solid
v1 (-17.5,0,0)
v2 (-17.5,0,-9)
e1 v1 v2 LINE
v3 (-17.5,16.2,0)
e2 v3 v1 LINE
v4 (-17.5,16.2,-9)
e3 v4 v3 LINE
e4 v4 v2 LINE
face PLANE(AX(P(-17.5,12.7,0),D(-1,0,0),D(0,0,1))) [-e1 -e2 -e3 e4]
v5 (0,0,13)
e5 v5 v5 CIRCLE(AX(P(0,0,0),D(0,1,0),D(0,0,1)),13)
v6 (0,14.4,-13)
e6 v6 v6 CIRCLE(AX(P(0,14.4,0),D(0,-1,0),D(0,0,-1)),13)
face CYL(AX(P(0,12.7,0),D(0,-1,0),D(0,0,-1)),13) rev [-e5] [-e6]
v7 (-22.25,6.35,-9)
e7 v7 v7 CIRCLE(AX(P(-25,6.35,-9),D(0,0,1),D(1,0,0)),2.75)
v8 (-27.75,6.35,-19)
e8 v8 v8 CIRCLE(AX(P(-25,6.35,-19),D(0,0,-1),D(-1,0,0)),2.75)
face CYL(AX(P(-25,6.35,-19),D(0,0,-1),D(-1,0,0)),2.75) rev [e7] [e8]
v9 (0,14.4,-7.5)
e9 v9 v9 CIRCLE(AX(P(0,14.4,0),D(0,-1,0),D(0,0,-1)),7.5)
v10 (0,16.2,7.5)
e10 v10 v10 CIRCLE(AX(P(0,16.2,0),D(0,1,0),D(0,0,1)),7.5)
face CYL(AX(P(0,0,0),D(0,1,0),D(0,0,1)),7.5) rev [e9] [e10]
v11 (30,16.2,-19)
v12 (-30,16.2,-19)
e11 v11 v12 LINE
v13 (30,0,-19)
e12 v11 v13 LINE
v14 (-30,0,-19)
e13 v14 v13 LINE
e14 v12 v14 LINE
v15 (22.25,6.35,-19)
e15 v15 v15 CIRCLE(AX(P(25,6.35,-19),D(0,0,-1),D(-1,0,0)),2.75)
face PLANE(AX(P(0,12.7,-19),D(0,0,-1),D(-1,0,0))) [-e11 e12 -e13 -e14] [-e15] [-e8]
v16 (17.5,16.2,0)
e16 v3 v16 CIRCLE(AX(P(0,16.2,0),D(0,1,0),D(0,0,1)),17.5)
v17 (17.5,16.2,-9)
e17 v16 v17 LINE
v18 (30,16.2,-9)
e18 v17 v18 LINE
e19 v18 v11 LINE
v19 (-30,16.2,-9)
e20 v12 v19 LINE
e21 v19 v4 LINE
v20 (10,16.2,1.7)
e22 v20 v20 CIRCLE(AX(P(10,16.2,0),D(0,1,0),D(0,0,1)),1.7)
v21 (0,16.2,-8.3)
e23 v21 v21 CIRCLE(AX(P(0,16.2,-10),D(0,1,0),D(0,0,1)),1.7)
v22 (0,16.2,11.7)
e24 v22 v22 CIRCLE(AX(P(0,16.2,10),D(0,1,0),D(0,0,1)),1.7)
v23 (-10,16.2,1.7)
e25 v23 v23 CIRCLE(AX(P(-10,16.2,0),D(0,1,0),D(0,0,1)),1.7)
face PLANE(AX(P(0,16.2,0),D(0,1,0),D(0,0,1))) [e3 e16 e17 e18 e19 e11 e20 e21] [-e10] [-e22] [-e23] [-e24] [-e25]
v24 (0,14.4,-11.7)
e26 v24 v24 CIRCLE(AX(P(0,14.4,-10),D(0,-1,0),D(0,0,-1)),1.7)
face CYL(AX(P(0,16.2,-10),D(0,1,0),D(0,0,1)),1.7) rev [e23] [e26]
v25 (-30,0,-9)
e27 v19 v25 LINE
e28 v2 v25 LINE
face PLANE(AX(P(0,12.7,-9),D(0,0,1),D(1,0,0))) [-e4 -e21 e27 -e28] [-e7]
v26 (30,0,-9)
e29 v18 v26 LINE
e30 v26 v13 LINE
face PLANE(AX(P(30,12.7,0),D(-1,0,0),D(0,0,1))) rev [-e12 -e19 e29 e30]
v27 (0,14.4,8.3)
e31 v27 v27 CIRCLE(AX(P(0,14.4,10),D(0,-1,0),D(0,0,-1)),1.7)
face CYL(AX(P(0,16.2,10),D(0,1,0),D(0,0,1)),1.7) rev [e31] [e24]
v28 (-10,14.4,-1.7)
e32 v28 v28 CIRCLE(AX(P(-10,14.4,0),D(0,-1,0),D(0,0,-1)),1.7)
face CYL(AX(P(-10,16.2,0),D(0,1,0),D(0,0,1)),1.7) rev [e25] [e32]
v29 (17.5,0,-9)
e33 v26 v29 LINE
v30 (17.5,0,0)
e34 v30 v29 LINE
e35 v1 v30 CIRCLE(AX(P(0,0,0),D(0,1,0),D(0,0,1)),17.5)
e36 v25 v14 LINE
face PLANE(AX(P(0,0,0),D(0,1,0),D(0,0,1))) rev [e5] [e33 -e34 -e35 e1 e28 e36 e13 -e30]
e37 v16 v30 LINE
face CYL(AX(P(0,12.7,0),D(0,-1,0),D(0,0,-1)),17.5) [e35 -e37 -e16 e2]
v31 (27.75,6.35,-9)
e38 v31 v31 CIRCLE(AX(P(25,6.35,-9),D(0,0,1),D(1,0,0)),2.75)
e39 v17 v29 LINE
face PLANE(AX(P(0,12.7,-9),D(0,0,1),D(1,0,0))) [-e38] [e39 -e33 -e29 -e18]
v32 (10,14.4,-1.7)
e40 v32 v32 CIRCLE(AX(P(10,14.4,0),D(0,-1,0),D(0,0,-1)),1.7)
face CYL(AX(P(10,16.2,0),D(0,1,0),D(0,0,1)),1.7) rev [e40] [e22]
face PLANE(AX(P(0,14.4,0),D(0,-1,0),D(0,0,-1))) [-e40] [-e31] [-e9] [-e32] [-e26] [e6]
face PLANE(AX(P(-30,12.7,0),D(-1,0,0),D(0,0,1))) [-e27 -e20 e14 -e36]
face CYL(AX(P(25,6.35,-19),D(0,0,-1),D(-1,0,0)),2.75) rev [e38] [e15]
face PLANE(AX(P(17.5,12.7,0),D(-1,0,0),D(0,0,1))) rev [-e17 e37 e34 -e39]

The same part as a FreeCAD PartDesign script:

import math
import FreeCAD as App
import Part
import Sketcher

V = App.Vector
Q = App.Units.Quantity

doc = App.newDocument("Part")
body = doc.addObject("PartDesign::Body", "Body")

# Sketch on XZ plane
sketch1 = doc.addObject("Sketcher::SketchObject", "Sketch")
body.addObject(sketch1)
sketch1.AttachmentSupport = (doc.XZ_Plane, [""])
sketch1.MapMode = "FlatFace"
sketch1.addGeometry(Part.LineSegment(V(-30, -9, 0), V(-17.5, -9, 0)), False)
sketch1.addGeometry(Part.LineSegment(V(-17.5, -9, 0), V(-17.5, 0, 0)), False)
sketch1.addGeometry(Part.ArcOfCircle(Part.Circle(V(0, 0, 0), V(0, 0, 1), 17.5), math.radians(0), math.radians(180)), False)
sketch1.addGeometry(Part.LineSegment(V(17.5, 0, 0), V(17.5, -9, 0)), False)
sketch1.addGeometry(Part.LineSegment(V(17.5, -9, 0), V(30, -9, 0)), False)
sketch1.addGeometry(Part.LineSegment(V(30, -9, 0), V(30, -19, 0)), False)
sketch1.addGeometry(Part.LineSegment(V(30, -19, 0), V(-30, -19, 0)), False)
sketch1.addGeometry(Part.LineSegment(V(-30, -19, 0), V(-30, -9, 0)), False)
sketch1.addGeometry(Part.Circle(V(0, 0, 0), V(0, 0, 1), 13), False)
sketch1.addConstraint(Sketcher.Constraint("Coincident", 0, 2, 1, 1))
sketch1.addConstraint(Sketcher.Constraint("Tangent", 1, 2, 2, 2))
sketch1.addConstraint(Sketcher.Constraint("Tangent", 2, 1, 3, 1))
sketch1.addConstraint(Sketcher.Constraint("Coincident", 3, 2, 4, 1))
sketch1.addConstraint(Sketcher.Constraint("Coincident", 4, 2, 5, 1))
sketch1.addConstraint(Sketcher.Constraint("Coincident", 5, 2, 6, 1))
sketch1.addConstraint(Sketcher.Constraint("Coincident", 6, 2, 7, 1))
sketch1.addConstraint(Sketcher.Constraint("Coincident", 7, 2, 0, 1))
sketch1.addConstraint(Sketcher.Constraint("Horizontal", 0))
sketch1.addConstraint(Sketcher.Constraint("Vertical", 1))
sketch1.addConstraint(Sketcher.Constraint("Vertical", 3))
sketch1.addConstraint(Sketcher.Constraint("Horizontal", 4))
sketch1.addConstraint(Sketcher.Constraint("Vertical", 5))
sketch1.addConstraint(Sketcher.Constraint("Horizontal", 6))
sketch1.addConstraint(Sketcher.Constraint("Vertical", 7))
sketch1.addConstraint(Sketcher.Constraint("Coincident", 2, 3, -1, 1))
sketch1.addConstraint(Sketcher.Constraint("Coincident", 8, 3, -1, 1))
sketch1.addConstraint(Sketcher.Constraint("Symmetric", 4, 2, 7, 2, -2))
sketch1.addConstraint(Sketcher.Constraint("Diameter", 8, Q("26 mm")))
sketch1.addConstraint(Sketcher.Constraint("Radius", 2, Q("17.5 mm")))
sketch1.addConstraint(Sketcher.Constraint("DistanceX", 6, 2, 6, 1, Q("60 mm")))
sketch1.addConstraint(Sketcher.Constraint("DistanceY", 1, 1, 1, 2, Q("9 mm")))
sketch1.addConstraint(Sketcher.Constraint("DistanceY", 5, 2, 5, 1, Q("10 mm")))
pad1 = doc.addObject("PartDesign::Pad", "Pad")
body.addObject(pad1)
pad1.Profile = sketch1
pad1.Length = 12.7
pad1.Reversed = True

# Sketch on XY plane
sketch2 = doc.addObject("Sketcher::SketchObject", "Sketch001")
body.addObject(sketch2)
sketch2.AttachmentSupport = (doc.XY_Plane, [""])
sketch2.MapMode = "FlatFace"
sketch2.AttachmentOffset = App.Placement(V(0, 0, -19), App.Rotation())
sketch2.addGeometry(Part.Circle(V(-25, 6.35, 0), V(0, 0, 1), 2.75), False)
sketch2.addGeometry(Part.Circle(V(25, 6.35, 0), V(0, 0, 1), 2.75), False)
sketch2.addConstraint(Sketcher.Constraint("Equal", 0, 1))
sketch2.addConstraint(Sketcher.Constraint("Symmetric", 0, 3, 1, 3, -2))
sketch2.addConstraint(Sketcher.Constraint("Diameter", 0, Q("5.5 mm")))
sketch2.addConstraint(Sketcher.Constraint("DistanceX", 0, 3, -1, 1, Q("25 mm")))
sketch2.addConstraint(Sketcher.Constraint("DistanceY", -1, 1, 0, 3, Q("6.35 mm")))
doc.recompute()
hole = doc.addObject("PartDesign::Hole", "Hole")
body.addObject(hole)
hole.Profile = sketch2
hole.ThreadType = "None"
hole.Diameter = 5.5
hole.DepthType = "Dimension"
hole.Depth = 10.1
hole.DrillPoint = "Angled"
hole.DrillPointAngle = 118
hole.Reversed = True

# Sketch on XZ plane
sketch3 = doc.addObject("Sketcher::SketchObject", "Sketch002")
body.addObject(sketch3)
sketch3.AttachmentSupport = (doc.XZ_Plane, [""])
sketch3.MapMode = "FlatFace"
sketch3.AttachmentOffset = App.Placement(V(0, 0, -12.7), App.Rotation())
sketch3.addGeometry(Part.LineSegment(V(-30, -9, 0), V(-17.5, -9, 0)), False)
sketch3.addGeometry(Part.LineSegment(V(-17.5, -9, 0), V(-17.5, 0, 0)), False)
sketch3.addGeometry(Part.ArcOfCircle(Part.Circle(V(0, 0, 0), V(0, 0, 1), 17.5), math.radians(0), math.radians(180)), False)
sketch3.addGeometry(Part.LineSegment(V(17.5, 0, 0), V(17.5, -9, 0)), False)
sketch3.addGeometry(Part.LineSegment(V(17.5, -9, 0), V(30, -9, 0)), False)
sketch3.addGeometry(Part.LineSegment(V(30, -9, 0), V(30, -19, 0)), False)
sketch3.addGeometry(Part.LineSegment(V(30, -19, 0), V(-30, -19, 0)), False)
sketch3.addGeometry(Part.LineSegment(V(-30, -19, 0), V(-30, -9, 0)), False)
sketch3.addConstraint(Sketcher.Constraint("Coincident", 0, 2, 1, 1))
sketch3.addConstraint(Sketcher.Constraint("Tangent", 1, 2, 2, 2))
sketch3.addConstraint(Sketcher.Constraint("Tangent", 2, 1, 3, 1))
sketch3.addConstraint(Sketcher.Constraint("Coincident", 3, 2, 4, 1))
sketch3.addConstraint(Sketcher.Constraint("Coincident", 4, 2, 5, 1))
sketch3.addConstraint(Sketcher.Constraint("Coincident", 5, 2, 6, 1))
sketch3.addConstraint(Sketcher.Constraint("Coincident", 6, 2, 7, 1))
sketch3.addConstraint(Sketcher.Constraint("Coincident", 7, 2, 0, 1))
sketch3.addConstraint(Sketcher.Constraint("Horizontal", 0))
sketch3.addConstraint(Sketcher.Constraint("Vertical", 1))
sketch3.addConstraint(Sketcher.Constraint("Vertical", 3))
sketch3.addConstraint(Sketcher.Constraint("Horizontal", 4))
sketch3.addConstraint(Sketcher.Constraint("Vertical", 5))
sketch3.addConstraint(Sketcher.Constraint("Horizontal", 6))
sketch3.addConstraint(Sketcher.Constraint("Vertical", 7))
sketch3.addConstraint(Sketcher.Constraint("Coincident", 2, 3, -1, 1))
sketch3.addConstraint(Sketcher.Constraint("Symmetric", 4, 2, 7, 2, -2))
sketch3.addConstraint(Sketcher.Constraint("Radius", 2, Q("17.5 mm")))
sketch3.addConstraint(Sketcher.Constraint("DistanceX", 6, 2, 6, 1, Q("60 mm")))
sketch3.addConstraint(Sketcher.Constraint("DistanceY", 1, 1, 1, 2, Q("9 mm")))
sketch3.addConstraint(Sketcher.Constraint("DistanceY", 5, 2, 5, 1, Q("10 mm")))
pad2 = doc.addObject("PartDesign::Pad", "Pad001")
body.addObject(pad2)
pad2.Profile = sketch3
pad2.Length = 3.5
pad2.Reversed = True

# Sketch on XZ plane
sketch4 = doc.addObject("Sketcher::SketchObject", "Sketch003")
body.addObject(sketch4)
sketch4.AttachmentSupport = (doc.XZ_Plane, [""])
sketch4.MapMode = "FlatFace"
sketch4.AttachmentOffset = App.Placement(V(0, 0, -12.7), App.Rotation())
sketch4.addGeometry(Part.Circle(V(0, 0, 0), V(0, 0, 1), 13), False)
sketch4.addConstraint(Sketcher.Constraint("Coincident", 0, 3, -1, 1))
sketch4.addConstraint(Sketcher.Constraint("Diameter", 0, Q("26 mm")))
pocket1 = doc.addObject("PartDesign::Pocket", "Pocket")
body.addObject(pocket1)
pocket1.Profile = sketch4
pocket1.Length = 1.7

# Sketch on XZ plane
sketch5 = doc.addObject("Sketcher::SketchObject", "Sketch004")
body.addObject(sketch5)
sketch5.AttachmentSupport = (doc.XZ_Plane, [""])
sketch5.MapMode = "FlatFace"
sketch5.AttachmentOffset = App.Placement(V(0, 0, -16.2), App.Rotation())
sketch5.addGeometry(Part.Circle(V(0, 0, 0), V(0, 0, 1), 7.5), False)
sketch5.addConstraint(Sketcher.Constraint("Coincident", 0, 3, -1, 1))
sketch5.addConstraint(Sketcher.Constraint("Diameter", 0, Q("15 mm")))
pocket2 = doc.addObject("PartDesign::Pocket", "Pocket001")
body.addObject(pocket2)
pocket2.Profile = sketch5
pocket2.Type = "ThroughAll"
pocket2.Reversed = True

# Sketch on XZ plane
sketch6 = doc.addObject("Sketcher::SketchObject", "Sketch005")
body.addObject(sketch6)
sketch6.AttachmentSupport = (doc.XZ_Plane, [""])
sketch6.MapMode = "FlatFace"
sketch6.AttachmentOffset = App.Placement(V(0, 0, -16.2), App.Rotation())
sketch6.addGeometry(Part.Circle(V(-10, 0, 0), V(0, 0, 1), 1.7), False)
sketch6.addGeometry(Part.Circle(V(0, 10, 0), V(0, 0, 1), 1.7), False)
sketch6.addGeometry(Part.Circle(V(10, 0, 0), V(0, 0, 1), 1.7), False)
sketch6.addGeometry(Part.Circle(V(0, -10, 0), V(0, 0, 1), 1.7), False)
sketch6.addConstraint(Sketcher.Constraint("Equal", 0, 1))
sketch6.addConstraint(Sketcher.Constraint("Equal", 1, 2))
sketch6.addConstraint(Sketcher.Constraint("Equal", 2, 3))
sketch6.addConstraint(Sketcher.Constraint("Symmetric", 0, 3, 2, 3, -1, 1))
sketch6.addConstraint(Sketcher.Constraint("Symmetric", 1, 3, 3, 3, -1, 1))
sketch6.addConstraint(Sketcher.Constraint("PointOnObject", 0, 3, -1))
sketch6.addConstraint(Sketcher.Constraint("PointOnObject", 1, 3, -2))
sketch6.addConstraint(Sketcher.Constraint("Diameter", 0, Q("3.4 mm")))
sketch6.addConstraint(Sketcher.Constraint("DistanceX", 0, 3, -1, 1, Q("10 mm")))
sketch6.addConstraint(Sketcher.Constraint("DistanceY", -1, 1, 1, 3, Q("10 mm")))
doc.recompute()
hole2 = doc.addObject("PartDesign::Hole", "Hole001")
body.addObject(hole2)
hole2.Profile = sketch6
hole2.ThreadType = "None"
hole2.Diameter = 3.4
hole2.DepthType = "Dimension"
hole2.Depth = 7.5
hole2.DrillPoint = "Angled"
hole2.DrillPointAngle = 118
hole2.Reversed = True

doc.recompute()
